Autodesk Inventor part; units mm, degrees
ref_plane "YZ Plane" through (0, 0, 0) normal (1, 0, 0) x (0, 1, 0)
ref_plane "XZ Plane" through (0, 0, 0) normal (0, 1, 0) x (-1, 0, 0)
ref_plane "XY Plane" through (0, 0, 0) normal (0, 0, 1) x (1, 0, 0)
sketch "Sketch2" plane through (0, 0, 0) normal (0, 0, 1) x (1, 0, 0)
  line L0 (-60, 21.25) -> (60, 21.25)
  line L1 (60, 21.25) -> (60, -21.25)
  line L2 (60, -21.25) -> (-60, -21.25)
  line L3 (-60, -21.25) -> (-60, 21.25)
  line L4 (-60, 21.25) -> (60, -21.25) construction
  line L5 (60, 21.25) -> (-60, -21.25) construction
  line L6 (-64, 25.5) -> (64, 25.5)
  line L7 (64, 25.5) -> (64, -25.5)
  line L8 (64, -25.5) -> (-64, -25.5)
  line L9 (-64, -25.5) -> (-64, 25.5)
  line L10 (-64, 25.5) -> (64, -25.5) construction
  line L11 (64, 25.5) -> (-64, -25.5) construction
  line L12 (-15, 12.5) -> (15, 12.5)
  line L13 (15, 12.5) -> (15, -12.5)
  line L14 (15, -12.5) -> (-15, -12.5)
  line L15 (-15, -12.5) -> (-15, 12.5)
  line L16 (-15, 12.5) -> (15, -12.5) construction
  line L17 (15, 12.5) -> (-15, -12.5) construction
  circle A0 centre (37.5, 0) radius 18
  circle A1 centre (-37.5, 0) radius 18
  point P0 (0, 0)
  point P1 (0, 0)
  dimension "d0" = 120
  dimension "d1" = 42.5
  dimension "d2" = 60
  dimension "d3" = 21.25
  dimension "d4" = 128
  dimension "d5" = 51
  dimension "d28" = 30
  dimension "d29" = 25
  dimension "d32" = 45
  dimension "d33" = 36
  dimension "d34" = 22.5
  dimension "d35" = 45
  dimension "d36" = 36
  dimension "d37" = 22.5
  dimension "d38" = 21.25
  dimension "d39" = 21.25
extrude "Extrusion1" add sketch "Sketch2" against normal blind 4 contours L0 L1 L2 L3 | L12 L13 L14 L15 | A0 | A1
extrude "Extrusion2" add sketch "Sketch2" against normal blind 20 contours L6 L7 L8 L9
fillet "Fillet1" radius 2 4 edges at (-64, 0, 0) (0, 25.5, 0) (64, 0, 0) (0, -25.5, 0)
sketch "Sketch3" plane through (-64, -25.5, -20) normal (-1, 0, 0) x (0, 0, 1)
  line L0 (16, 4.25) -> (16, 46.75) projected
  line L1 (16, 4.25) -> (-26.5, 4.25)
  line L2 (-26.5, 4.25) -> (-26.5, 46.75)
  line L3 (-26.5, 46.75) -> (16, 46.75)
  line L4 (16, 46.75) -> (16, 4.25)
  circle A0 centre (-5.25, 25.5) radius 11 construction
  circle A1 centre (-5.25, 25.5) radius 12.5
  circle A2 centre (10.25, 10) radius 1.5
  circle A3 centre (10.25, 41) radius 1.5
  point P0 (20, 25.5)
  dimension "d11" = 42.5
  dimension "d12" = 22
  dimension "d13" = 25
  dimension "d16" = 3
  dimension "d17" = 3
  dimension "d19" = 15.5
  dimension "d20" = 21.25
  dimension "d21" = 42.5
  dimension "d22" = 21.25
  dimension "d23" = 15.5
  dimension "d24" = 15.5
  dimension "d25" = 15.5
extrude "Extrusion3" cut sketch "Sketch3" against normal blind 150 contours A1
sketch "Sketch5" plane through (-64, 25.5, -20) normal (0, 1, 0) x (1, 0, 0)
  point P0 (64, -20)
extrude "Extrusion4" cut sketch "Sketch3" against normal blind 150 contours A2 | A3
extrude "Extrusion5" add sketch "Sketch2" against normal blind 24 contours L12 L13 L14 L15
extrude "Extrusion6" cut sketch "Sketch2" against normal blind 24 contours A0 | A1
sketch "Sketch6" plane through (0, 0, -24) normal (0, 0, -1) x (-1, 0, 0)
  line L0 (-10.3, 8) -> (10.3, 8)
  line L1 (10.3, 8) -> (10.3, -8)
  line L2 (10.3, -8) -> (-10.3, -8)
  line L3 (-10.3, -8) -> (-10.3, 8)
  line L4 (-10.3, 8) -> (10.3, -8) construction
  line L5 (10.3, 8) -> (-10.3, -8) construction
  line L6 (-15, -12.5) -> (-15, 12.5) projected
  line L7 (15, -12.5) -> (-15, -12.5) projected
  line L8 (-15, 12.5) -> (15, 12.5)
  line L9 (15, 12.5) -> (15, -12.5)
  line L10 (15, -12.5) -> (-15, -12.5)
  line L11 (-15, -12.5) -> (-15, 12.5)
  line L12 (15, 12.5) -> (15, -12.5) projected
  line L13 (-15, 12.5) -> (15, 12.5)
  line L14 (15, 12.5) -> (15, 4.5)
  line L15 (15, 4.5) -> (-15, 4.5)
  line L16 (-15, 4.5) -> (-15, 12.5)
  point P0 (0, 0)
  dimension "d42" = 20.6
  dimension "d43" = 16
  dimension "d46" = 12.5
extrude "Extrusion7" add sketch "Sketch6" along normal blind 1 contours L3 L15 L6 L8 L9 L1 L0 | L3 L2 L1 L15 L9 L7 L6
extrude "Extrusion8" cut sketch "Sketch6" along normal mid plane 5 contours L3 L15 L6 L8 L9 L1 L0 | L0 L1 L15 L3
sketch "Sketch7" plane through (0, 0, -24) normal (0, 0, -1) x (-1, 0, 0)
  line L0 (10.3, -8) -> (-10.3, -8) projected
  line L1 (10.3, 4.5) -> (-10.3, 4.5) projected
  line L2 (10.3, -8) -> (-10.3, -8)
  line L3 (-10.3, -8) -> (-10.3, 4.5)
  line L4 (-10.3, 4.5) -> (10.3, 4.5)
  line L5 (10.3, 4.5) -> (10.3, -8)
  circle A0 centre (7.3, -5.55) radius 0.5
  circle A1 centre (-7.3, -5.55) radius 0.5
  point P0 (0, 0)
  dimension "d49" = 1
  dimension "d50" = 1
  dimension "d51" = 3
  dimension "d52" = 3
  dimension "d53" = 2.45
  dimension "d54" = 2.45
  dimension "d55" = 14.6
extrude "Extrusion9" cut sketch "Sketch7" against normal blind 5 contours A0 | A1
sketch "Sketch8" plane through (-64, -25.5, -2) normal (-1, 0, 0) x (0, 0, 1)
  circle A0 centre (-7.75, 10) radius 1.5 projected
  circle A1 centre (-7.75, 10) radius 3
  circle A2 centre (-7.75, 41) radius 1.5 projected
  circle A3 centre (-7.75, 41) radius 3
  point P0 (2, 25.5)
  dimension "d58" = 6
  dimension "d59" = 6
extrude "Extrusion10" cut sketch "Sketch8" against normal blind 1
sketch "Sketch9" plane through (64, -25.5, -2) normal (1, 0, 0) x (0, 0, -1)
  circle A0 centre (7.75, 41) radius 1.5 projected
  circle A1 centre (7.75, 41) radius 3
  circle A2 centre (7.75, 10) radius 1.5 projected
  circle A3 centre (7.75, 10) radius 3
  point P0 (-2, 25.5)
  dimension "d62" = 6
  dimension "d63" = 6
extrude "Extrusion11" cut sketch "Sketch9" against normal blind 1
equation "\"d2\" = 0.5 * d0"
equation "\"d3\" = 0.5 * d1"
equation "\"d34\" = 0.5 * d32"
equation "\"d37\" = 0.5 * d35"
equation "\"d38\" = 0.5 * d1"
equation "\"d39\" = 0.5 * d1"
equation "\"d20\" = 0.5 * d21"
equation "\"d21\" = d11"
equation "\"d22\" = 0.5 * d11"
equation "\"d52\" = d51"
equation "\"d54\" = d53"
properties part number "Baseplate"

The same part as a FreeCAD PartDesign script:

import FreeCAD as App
import Part
import Sketcher
from FreeCAD import Vector


def edges_at(feature, points):
    """Names of the edges that pass closest to the given points."""
    edges = feature.Shape.Edges
    near = lambda p: min(range(len(edges)), key=lambda i: edges[i].distToShape(Part.Vertex(*p))[0])
    return sorted({f"Edge{near(p) + 1}" for p in points})

doc = App.newDocument("Part")
params = doc.addObject("Spreadsheet::Sheet", "Params")
for row, (alias, value) in enumerate([
    ("sketch1_width", "120 mm"),
    ("sketch1_height", "42.5 mm"),
    ("pad1_length", "4 mm"),
    ("sketch2_width", "128 mm"),
    ("sketch2_width2", "120 mm"),
    ("sketch2_height", "51 mm"),
    ("sketch2_height2", "42.5 mm"),
    ("pad2_length", "20 mm"),
    ("fillet_radius", "2 mm"),
    ("sketch3_diameter", "25 mm"),
    ("pocket1_length", "150 mm"),
    ("sketch4_diameter", "3 mm"),
    ("pocket2_length", "150 mm"),
    ("sketch5_width", "30 mm"),
    ("sketch5_height", "25 mm"),
    ("pad3_length", "24 mm"),
    ("sketch6_diameter", "36 mm"),
    ("pocket3_length", "24 mm"),
    ("sketch7_height", "16 mm"),
    ("sketch7_width", "20.6 mm"),
    ("sketch7_width2", "30 mm"),
    ("pad4_length", "1 mm"),
    ("sketch8_width", "30 mm"),
    ("sketch8_height", "8 mm"),
    ("pocket4_length", "5 mm"),
    ("sketch9_diameter", "1 mm"),
    ("pocket5_length", "5 mm"),
    ("sketch10_diameter", "6 mm"),
    ("sketch10_diameter2", "3 mm"),
    ("pocket6_length", "1 mm"),
    ("sketch11_diameter", "6 mm"),
    ("sketch11_diameter2", "3 mm"),
    ("pocket7_length", "1 mm"),
], start=1):
    params.set(f"A{row}", alias)
    params.set(f"B{row}", "=" + value)
    params.setAlias(f"B{row}", alias)

body = doc.addObject("PartDesign::Body", "Body")

sketch1 = body.newObject("Sketcher::SketchObject", "Sketch")
sketch1.AttachmentSupport = (doc.getObject("XY_Plane"), [""])
sketch1.MapMode = "FlatFace"
sketch1.addGeometry([
    Part.LineSegment(Vector(60, 21.25, 0), Vector(-60, 21.25, 0)),
    Part.LineSegment(Vector(-60, 21.25, 0), Vector(-60, -21.25, 0)),
    Part.LineSegment(Vector(-60, -21.25, 0), Vector(60, -21.25, 0)),
    Part.LineSegment(Vector(60, -21.25, 0), Vector(60, 21.25, 0)),
], False)
sketch1.addConstraint([
    Sketcher.Constraint("Coincident", 0, 2, 1, 1),
    Sketcher.Constraint("Coincident", 1, 2, 2, 1),
    Sketcher.Constraint("Coincident", 2, 2, 3, 1),
    Sketcher.Constraint("Coincident", 3, 2, 0, 1),
    Sketcher.Constraint("Horizontal", 0),
    Sketcher.Constraint("Vertical", 1),
    Sketcher.Constraint("Horizontal", 2),
    Sketcher.Constraint("Vertical", 3),
    Sketcher.Constraint("Symmetric", 0, 2, 2, 2, -1, 1),
    Sketcher.Constraint("DistanceX", 0, 2, 0, 1, 120.0),
    Sketcher.Constraint("DistanceY", 1, 2, 1, 1, 42.5),
])
sketch1.setExpression("Constraints[9]", "Params.sketch1_width")
sketch1.setExpression("Constraints[10]", "Params.sketch1_height")
pad1 = body.newObject("PartDesign::Pad", "Pad")
pad1.Profile = sketch1
pad1.setExpression("Length", "Params.pad1_length")
pad1.Reversed = True

sketch2 = body.newObject("Sketcher::SketchObject", "Sketch001")
sketch2.AttachmentSupport = (doc.getObject("XY_Plane"), [""])
sketch2.MapMode = "FlatFace"
sketch2.addGeometry([
    Part.LineSegment(Vector(64, 25.5, 0), Vector(-64, 25.5, 0)),
    Part.LineSegment(Vector(-64, 25.5, 0), Vector(-64, -25.5, 0)),
    Part.LineSegment(Vector(-64, -25.5, 0), Vector(64, -25.5, 0)),
    Part.LineSegment(Vector(64, -25.5, 0), Vector(64, 25.5, 0)),
    Part.LineSegment(Vector(-60, -21.25, 0), Vector(-60, 21.25, 0)),
    Part.LineSegment(Vector(-60, 21.25, 0), Vector(60, 21.25, 0)),
    Part.LineSegment(Vector(60, 21.25, 0), Vector(60, -21.25, 0)),
    Part.LineSegment(Vector(60, -21.25, 0), Vector(-60, -21.25, 0)),
], False)
sketch2.addConstraint([
    Sketcher.Constraint("Coincident", 0, 2, 1, 1),
    Sketcher.Constraint("Coincident", 1, 2, 2, 1),
    Sketcher.Constraint("Coincident", 2, 2, 3, 1),
    Sketcher.Constraint("Coincident", 3, 2, 0, 1),
    Sketcher.Constraint("Coincident", 4, 2, 5, 1),
    Sketcher.Constraint("Coincident", 5, 2, 6, 1),
    Sketcher.Constraint("Coincident", 6, 2, 7, 1),
    Sketcher.Constraint("Coincident", 7, 2, 4, 1),
    Sketcher.Constraint("Horizontal", 0),
    Sketcher.Constraint("Vertical", 1),
    Sketcher.Constraint("Horizontal", 2),
    Sketcher.Constraint("Vertical", 3),
    Sketcher.Constraint("Vertical", 4),
    Sketcher.Constraint("Horizontal", 5),
    Sketcher.Constraint("Vertical", 6),
    Sketcher.Constraint("Horizontal", 7),
    Sketcher.Constraint("Symmetric", 0, 2, 2, 2, -1, 1),
    Sketcher.Constraint("Symmetric", 4, 2, 6, 2, -1, 1),
    Sketcher.Constraint("DistanceX", 0, 2, 0, 1, 128.0),
    Sketcher.Constraint("DistanceX", 5, 1, 5, 2, 120.0),
    Sketcher.Constraint("DistanceY", 1, 2, 1, 1, 51.0),
    Sketcher.Constraint("DistanceY", 4, 1, 4, 2, 42.5),
])
sketch2.setExpression("Constraints[18]", "Params.sketch2_width")
sketch2.setExpression("Constraints[19]", "Params.sketch2_width2")
sketch2.setExpression("Constraints[20]", "Params.sketch2_height")
sketch2.setExpression("Constraints[21]", "Params.sketch2_height2")
pad2 = body.newObject("PartDesign::Pad", "Pad001")
pad2.Profile = sketch2
pad2.setExpression("Length", "Params.pad2_length")
pad2.Reversed = True
doc.recompute()

fillet = body.newObject("PartDesign::Fillet", "Fillet")
fillet.Base = (pad2, edges_at(pad2, [
    (-64, 0, 0),
    (0, 25.5, 0),
    (64, 0, 0),
    (0, -25.5, 0),
]))
fillet.setExpression("Radius", "Params.fillet_radius")

sketch3 = body.newObject("Sketcher::SketchObject", "Sketch002")
sketch3.AttachmentSupport = (doc.getObject("YZ_Plane"), [""])
sketch3.MapMode = "FlatFace"
sketch3.AttachmentOffset = App.Placement(Vector(0, 0, -64), App.Rotation())
sketch3.addGeometry(Part.Circle(Vector(0, -25.25, 0), Vector(0, 0, 1), 12.5), False)
sketch3.addConstraint([
    Sketcher.Constraint("PointOnObject", 0, 3, -2),
    Sketcher.Constraint("Diameter", 0, 25.0),
    Sketcher.Constraint("DistanceY", 0, 3, -1, 1, 25.25),
])
sketch3.setExpression("Constraints[1]", "Params.sketch3_diameter")
pocket1 = body.newObject("PartDesign::Pocket", "Pocket")
pocket1.Profile = sketch3
pocket1.setExpression("Length", "Params.pocket1_length")
pocket1.Reversed = True

sketch4 = body.newObject("Sketcher::SketchObject", "Sketch003")
sketch4.AttachmentSupport = (doc.getObject("YZ_Plane"), [""])
sketch4.MapMode = "FlatFace"
sketch4.AttachmentOffset = App.Placement(Vector(0, 0, -64), App.Rotation())
sketch4.addGeometry([
    Part.Circle(Vector(-15.5, -9.75, 0), Vector(0, 0, 1), 1.5),
    Part.Circle(Vector(15.5, -9.75, 0), Vector(0, 0, 1), 1.5),
], False)
sketch4.addConstraint([
    Sketcher.Constraint("Equal", 0, 1),
    Sketcher.Constraint("Symmetric", 0, 3, 1, 3, -2),
    Sketcher.Constraint("Diameter", 0, 3.0),
    Sketcher.Constraint("DistanceX", 0, 3, -1, 1, 15.5),
    Sketcher.Constraint("DistanceY", 0, 3, -1, 1, 9.75),
])
sketch4.setExpression("Constraints[2]", "Params.sketch4_diameter")
pocket2 = body.newObject("PartDesign::Pocket", "Pocket001")
pocket2.Profile = sketch4
pocket2.setExpression("Length", "Params.pocket2_length")
pocket2.Reversed = True

sketch5 = body.newObject("Sketcher::SketchObject", "Sketch004")
sketch5.AttachmentSupport = (doc.getObject("XY_Plane"), [""])
sketch5.MapMode = "FlatFace"
sketch5.addGeometry([
    Part.LineSegment(Vector(15, 12.5, 0), Vector(-15, 12.5, 0)),
    Part.LineSegment(Vector(-15, 12.5, 0), Vector(-15, -12.5, 0)),
    Part.LineSegment(Vector(-15, -12.5, 0), Vector(15, -12.5, 0)),
    Part.LineSegment(Vector(15, -12.5, 0), Vector(15, 12.5, 0)),
], False)
sketch5.addConstraint([
    Sketcher.Constraint("Coincident", 0, 2, 1, 1),
    Sketcher.Constraint("Coincident", 1, 2, 2, 1),
    Sketcher.Constraint("Coincident", 2, 2, 3, 1),
    Sketcher.Constraint("Coincident", 3, 2, 0, 1),
    Sketcher.Constraint("Horizontal", 0),
    Sketcher.Constraint("Vertical", 1),
    Sketcher.Constraint("Horizontal", 2),
    Sketcher.Constraint("Vertical", 3),
    Sketcher.Constraint("Symmetric", 0, 2, 2, 2, -1, 1),
    Sketcher.Constraint("DistanceX", 0, 2, 0, 1, 30.0),
    Sketcher.Constraint("DistanceY", 1, 2, 1, 1, 25.0),
])
sketch5.setExpression("Constraints[9]", "Params.sketch5_width")
sketch5.setExpression("Constraints[10]", "Params.sketch5_height")
pad3 = body.newObject("PartDesign::Pad", "Pad002")
pad3.Profile = sketch5
pad3.setExpression("Length", "Params.pad3_length")
pad3.Reversed = True

sketch6 = body.newObject("Sketcher::SketchObject", "Sketch005")
sketch6.AttachmentSupport = (doc.getObject("XY_Plane"), [""])
sketch6.MapMode = "FlatFace"
sketch6.addGeometry([
    Part.Circle(Vector(37.5, 0, 0), Vector(0, 0, 1), 18),
    Part.Circle(Vector(-37.5, 0, 0), Vector(0, 0, 1), 18),
], False)
sketch6.addConstraint([
    Sketcher.Constraint("Equal", 0, 1),
    Sketcher.Constraint("Symmetric", 0, 3, 1, 3, -1, 1),
    Sketcher.Constraint("PointOnObject", 0, 3, -1),
    Sketcher.Constraint("Diameter", 0, 36.0),
    Sketcher.Constraint("DistanceX", 1, 3, 0, 3, 75.0),
])
sketch6.setExpression("Constraints[3]", "Params.sketch6_diameter")
pocket3 = body.newObject("PartDesign::Pocket", "Pocket002")
pocket3.Profile = sketch6
pocket3.setExpression("Length", "Params.pocket3_length")

sketch7 = body.newObject("Sketcher::SketchObject", "Sketch006")
sketch7.AttachmentSupport = (doc.getObject("XY_Plane"), [""])
sketch7.MapMode = "FlatFace"
sketch7.AttachmentOffset = App.Placement(Vector(0, 0, -24), App.Rotation())
sketch7.addGeometry([
    Part.LineSegment(Vector(15, 12.5, 0), Vector(15, -12.5, 0)),
    Part.LineSegment(Vector(15, -12.5, 0), Vector(-15, -12.5, 0)),
    Part.LineSegment(Vector(-15, -12.5, 0), Vector(-15, 12.5, 0)),
    Part.LineSegment(Vector(-15, 12.5, 0), Vector(15, 12.5, 0)),
    Part.LineSegment(Vector(10.3, 8, 0), Vector(-10.3, 8, 0)),
    Part.LineSegment(Vector(-10.3, 8, 0), Vector(-10.3, -8, 0)),
    Part.LineSegment(Vector(-10.3, -8, 0), Vector(10.3, -8, 0)),
    Part.LineSegment(Vector(10.3, -8, 0), Vector(10.3, 8, 0)),
], False)
sketch7.addConstraint([
    Sketcher.Constraint("Coincident", 0, 2, 1, 1),
    Sketcher.Constraint("Coincident", 1, 2, 2, 1),
    Sketcher.Constraint("Coincident", 2, 2, 3, 1),
    Sketcher.Constraint("Coincident", 3, 2, 0, 1),
    Sketcher.Constraint("Coincident", 4, 2, 5, 1),
    Sketcher.Constraint("Coincident", 5, 2, 6, 1),
    Sketcher.Constraint("Coincident", 6, 2, 7, 1),
    Sketcher.Constraint("Coincident", 7, 2, 4, 1),
    Sketcher.Constraint("Vertical", 0),
    Sketcher.Constraint("Horizontal", 1),
    Sketcher.Constraint("Vertical", 2),
    Sketcher.Constraint("Horizontal", 3),
    Sketcher.Constraint("Horizontal", 4),
    Sketcher.Constraint("Vertical", 5),
    Sketcher.Constraint("Horizontal", 6),
    Sketcher.Constraint("Vertical", 7),
    Sketcher.Constraint("Symmetric", 0, 2, 2, 2, -1, 1),
    Sketcher.Constraint("Symmetric", 4, 2, 6, 2, -1, 1),
    Sketcher.Constraint("DistanceY", 5, 2, 5, 1, 16.0),
    Sketcher.Constraint("DistanceX", 4, 2, 4, 1, 20.6),
    Sketcher.Constraint("DistanceY", 0, 2, -1, 1, 12.5),
    Sketcher.Constraint("DistanceX", 1, 2, 1, 1, 30.0),
])
sketch7.setExpression("Constraints[18]", "Params.sketch7_height")
sketch7.setExpression("Constraints[19]", "Params.sketch7_width")
sketch7.setExpression("Constraints[21]", "Params.sketch7_width2")
pad4 = body.newObject("PartDesign::Pad", "Pad003")
pad4.Profile = sketch7
pad4.setExpression("Length", "Params.pad4_length")
pad4.Reversed = True

sketch8 = body.newObject("Sketcher::SketchObject", "Sketch007")
sketch8.AttachmentSupport = (doc.getObject("XY_Plane"), [""])
sketch8.MapMode = "FlatFace"
sketch8.AttachmentOffset = App.Placement(Vector(0, 0, -24), App.Rotation())
sketch8.addGeometry([
    Part.LineSegment(Vector(15, 4.5, 0), Vector(-15, 4.5, 0)),
    Part.LineSegment(Vector(-15, 4.5, 0), Vector(-15, 12.5, 0)),
    Part.LineSegment(Vector(-15, 12.5, 0), Vector(15, 12.5, 0)),
    Part.LineSegment(Vector(15, 12.5, 0), Vector(15, 4.5, 0)),
], False)
sketch8.addConstraint([
    Sketcher.Constraint("Coincident", 0, 2, 1, 1),
    Sketcher.Constraint("Coincident", 1, 2, 2, 1),
    Sketcher.Constraint("Coincident", 2, 2, 3, 1),
    Sketcher.Constraint("Coincident", 3, 2, 0, 1),
    Sketcher.Constraint("Horizontal", 0),
    Sketcher.Constraint("Vertical", 1),
    Sketcher.Constraint("Horizontal", 2),
    Sketcher.Constraint("Vertical", 3),
    Sketcher.Constraint("DistanceY", -1, 1, 1, 2, 12.5),
    Sketcher.Constraint("DistanceX", 0, 2, 0, 1, 30.0),
    Sketcher.Constraint("DistanceY", 1, 1, 1, 2, 8.0),
    Sketcher.Constraint("DistanceX", 0, 2, -1, 1, 15.0),
])
sketch8.setExpression("Constraints[9]", "Params.sketch8_width")
sketch8.setExpression("Constraints[10]", "Params.sketch8_height")
pocket4 = body.newObject("PartDesign::Pocket", "Pocket003")
pocket4.Profile = sketch8
pocket4.setExpression("Length", "Params.pocket4_length")
pocket4.Midplane = True

sketch9 = body.newObject("Sketcher::SketchObject", "Sketch008")
sketch9.AttachmentSupport = (doc.getObject("XY_Plane"), [""])
sketch9.MapMode = "FlatFace"
sketch9.AttachmentOffset = App.Placement(Vector(0, 0, -24), App.Rotation())
sketch9.addGeometry([
    Part.Circle(Vector(-7.3, -5.55, 0), Vector(0, 0, 1), 0.5),
    Part.Circle(Vector(7.3, -5.55, 0), Vector(0, 0, 1), 0.5),
], False)
sketch9.addConstraint([
    Sketcher.Constraint("Equal", 0, 1),
    Sketcher.Constraint("Symmetric", 0, 3, 1, 3, -2),
    Sketcher.Constraint("Diameter", 0, 1.0),
    Sketcher.Constraint("DistanceX", 0, 3, 1, 3, 14.6),
    Sketcher.Constraint("DistanceY", 0, 3, -1, 1, 5.55),
])
sketch9.setExpression("Constraints[2]", "Params.sketch9_diameter")
pocket5 = body.newObject("PartDesign::Pocket", "Pocket004")
pocket5.Profile = sketch9
pocket5.setExpression("Length", "Params.pocket5_length")
pocket5.Reversed = True

sketch10 = body.newObject("Sketcher::SketchObject", "Sketch009")
sketch10.AttachmentSupport = (doc.getObject("YZ_Plane"), [""])
sketch10.MapMode = "FlatFace"
sketch10.AttachmentOffset = App.Placement(Vector(0, 0, -64), App.Rotation())
sketch10.addGeometry([
    Part.Circle(Vector(-15.5, -9.75, 0), Vector(0, 0, 1), 3),
    Part.Circle(Vector(-15.5, -9.75, 0), Vector(0, 0, 1), 1.5),
    Part.Circle(Vector(15.5, -9.75, 0), Vector(0, 0, 1), 3),
    Part.Circle(Vector(15.5, -9.75, 0), Vector(0, 0, 1), 1.5),
], False)
sketch10.addConstraint([
    Sketcher.Constraint("Coincident", 1, 3, 0, 3),
    Sketcher.Constraint("Coincident", 3, 3, 2, 3),
    Sketcher.Constraint("Equal", 0, 2),
    Sketcher.Constraint("Equal", 1, 3),
    Sketcher.Constraint("Symmetric", 0, 3, 2, 3, -2),
    Sketcher.Constraint("Diameter", 0, 6.0),
    Sketcher.Constraint("Diameter", 1, 3.0),
    Sketcher.Constraint("DistanceX", 0, 3, 2, 3, 31.0),
    Sketcher.Constraint("DistanceY", 0, 3, -1, 1, 9.75),
])
sketch10.setExpression("Constraints[5]", "Params.sketch10_diameter")
sketch10.setExpression("Constraints[6]", "Params.sketch10_diameter2")
pocket6 = body.newObject("PartDesign::Pocket", "Pocket005")
pocket6.Profile = sketch10
pocket6.setExpression("Length", "Params.pocket6_length")
pocket6.Reversed = True

sketch11 = body.newObject("Sketcher::SketchObject", "Sketch010")
sketch11.AttachmentSupport = (doc.getObject("YZ_Plane"), [""])
sketch11.MapMode = "FlatFace"
sketch11.AttachmentOffset = App.Placement(Vector(0, 0, 64), App.Rotation())
sketch11.addGeometry([
    Part.Circle(Vector(15.5, -9.75, 0), Vector(0, 0, 1), 3),
    Part.Circle(Vector(15.5, -9.75, 0), Vector(0, 0, 1), 1.5),
    Part.Circle(Vector(-15.5, -9.75, 0), Vector(0, 0, 1), 3),
    Part.Circle(Vector(-15.5, -9.75, 0), Vector(0, 0, 1), 1.5),
], False)
sketch11.addConstraint([
    Sketcher.Constraint("Coincident", 1, 3, 0, 3),
    Sketcher.Constraint("Coincident", 3, 3, 2, 3),
    Sketcher.Constraint("Equal", 0, 2),
    Sketcher.Constraint("Equal", 1, 3),
    Sketcher.Constraint("Symmetric", 0, 3, 2, 3, -2),
    Sketcher.Constraint("Diameter", 0, 6.0),
    Sketcher.Constraint("Diameter", 1, 3.0),
    Sketcher.Constraint("DistanceX", 2, 3, 0, 3, 31.0),
    Sketcher.Constraint("DistanceY", 0, 3, -1, 1, 9.75),
])
sketch11.setExpression("Constraints[5]", "Params.sketch11_diameter")
sketch11.setExpression("Constraints[6]", "Params.sketch11_diameter2")
pocket7 = body.newObject("PartDesign::Pocket", "Pocket006")
pocket7.Profile = sketch11
pocket7.setExpression("Length", "Params.pocket7_length")

doc.recompute()
